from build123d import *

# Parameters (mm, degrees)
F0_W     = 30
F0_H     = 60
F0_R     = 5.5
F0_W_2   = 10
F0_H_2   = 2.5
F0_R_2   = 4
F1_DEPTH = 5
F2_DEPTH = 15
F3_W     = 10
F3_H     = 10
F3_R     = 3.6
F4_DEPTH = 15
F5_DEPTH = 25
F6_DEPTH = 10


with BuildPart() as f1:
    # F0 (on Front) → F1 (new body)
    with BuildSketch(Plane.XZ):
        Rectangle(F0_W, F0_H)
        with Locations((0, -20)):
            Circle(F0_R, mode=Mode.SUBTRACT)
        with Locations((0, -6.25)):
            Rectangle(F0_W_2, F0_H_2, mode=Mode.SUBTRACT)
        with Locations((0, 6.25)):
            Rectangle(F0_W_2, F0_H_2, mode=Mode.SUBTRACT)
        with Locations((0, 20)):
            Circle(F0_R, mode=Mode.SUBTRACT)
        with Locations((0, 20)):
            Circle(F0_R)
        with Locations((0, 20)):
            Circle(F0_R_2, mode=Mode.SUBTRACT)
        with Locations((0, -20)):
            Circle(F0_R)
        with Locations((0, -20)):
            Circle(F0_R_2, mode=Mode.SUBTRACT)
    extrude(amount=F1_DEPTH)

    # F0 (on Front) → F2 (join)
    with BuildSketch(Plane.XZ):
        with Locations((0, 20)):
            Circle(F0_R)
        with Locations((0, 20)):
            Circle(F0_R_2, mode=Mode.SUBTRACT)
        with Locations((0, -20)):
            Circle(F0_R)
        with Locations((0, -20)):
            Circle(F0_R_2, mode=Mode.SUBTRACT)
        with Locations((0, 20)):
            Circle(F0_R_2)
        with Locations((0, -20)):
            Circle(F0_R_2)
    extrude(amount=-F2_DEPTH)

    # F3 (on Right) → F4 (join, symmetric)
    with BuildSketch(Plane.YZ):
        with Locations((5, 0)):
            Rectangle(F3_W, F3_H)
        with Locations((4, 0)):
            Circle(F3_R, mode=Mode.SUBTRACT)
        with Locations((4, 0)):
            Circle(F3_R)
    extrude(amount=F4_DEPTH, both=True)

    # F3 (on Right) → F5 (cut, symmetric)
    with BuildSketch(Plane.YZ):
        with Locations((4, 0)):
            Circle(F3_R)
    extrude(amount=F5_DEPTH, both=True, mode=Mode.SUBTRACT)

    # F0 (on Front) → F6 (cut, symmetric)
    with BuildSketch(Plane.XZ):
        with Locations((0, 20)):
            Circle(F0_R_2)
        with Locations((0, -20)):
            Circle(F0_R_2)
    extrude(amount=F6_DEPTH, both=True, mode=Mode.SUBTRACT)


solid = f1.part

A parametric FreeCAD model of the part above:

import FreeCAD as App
import Part
import Sketcher
from FreeCAD import Vector
Q = App.Units.Quantity


def add_polygon(sketch, points):
    """Adds a closed chain of lines whose ends are joined by coincident constraints."""
    first, n = sketch.GeometryCount, len(points)
    for a, b in zip(points, points[1:] + points[:1]):
        sketch.addGeometry(Part.LineSegment(App.Vector(*a, 0), App.Vector(*b, 0)), False)
    for i in range(n):
        sketch.addConstraint(Sketcher.Constraint("Coincident", first + i, 2, first + (i + 1) % n, 1))

doc = App.newDocument("Part")
body = doc.addObject("PartDesign::Body", "Body")

# Sketch on XZ plane
sketch1 = body.newObject("Sketcher::SketchObject", "Sketch")
sketch1.AttachmentSupport = (doc.getObject("XZ_Plane"), [""])
sketch1.MapMode = "FlatFace"
add_polygon(sketch1, [(-15, 30), (-15, -30), (15, -30), (15, 30)])  # lines 0-3
sketch1.addGeometry(Part.Circle(Vector(0, -20, 0), Vector(0, 0, 1), 4), False)  # 4
add_polygon(sketch1, [(5, -7.5), (-5, -7.5), (-5, -5), (5, -5)])  # lines 5-8
add_polygon(sketch1, [(5, 5), (-5, 5), (-5, 7.5), (5, 7.5)])  # lines 9-12
sketch1.addGeometry(Part.Circle(Vector(0, 20, 0), Vector(0, 0, 1), 4), False)  # 13
sketch1.addConstraint(Sketcher.Constraint("Vertical", 0))
sketch1.addConstraint(Sketcher.Constraint("Horizontal", 1))
sketch1.addConstraint(Sketcher.Constraint("Vertical", 2))
sketch1.addConstraint(Sketcher.Constraint("Horizontal", 3))
sketch1.addConstraint(Sketcher.Constraint("Horizontal", 5))
sketch1.addConstraint(Sketcher.Constraint("Vertical", 6))
sketch1.addConstraint(Sketcher.Constraint("Horizontal", 7))
sketch1.addConstraint(Sketcher.Constraint("Vertical", 8))
sketch1.addConstraint(Sketcher.Constraint("Horizontal", 9))
sketch1.addConstraint(Sketcher.Constraint("Vertical", 10))
sketch1.addConstraint(Sketcher.Constraint("Horizontal", 11))
sketch1.addConstraint(Sketcher.Constraint("Vertical", 12))
sketch1.addConstraint(Sketcher.Constraint("Equal", 4, 13))
sketch1.addConstraint(Sketcher.Constraint("Symmetric", 4, 3, 13, 3, -1, 1))
sketch1.addConstraint(Sketcher.Constraint("Symmetric", 0, 2, 2, 2, -1, 1))
sketch1.addConstraint(Sketcher.Constraint("Symmetric", 7, 2, 9, 2, -1, 1))
sketch1.addConstraint(Sketcher.Constraint("Symmetric", 5, 2, 11, 2, -1, 1))
sketch1.addConstraint(Sketcher.Constraint("PointOnObject", 4, 3, -2))
sketch1.addConstraint(Sketcher.Constraint("Vertical", 6, 2, 9, 2))
sketch1.addConstraint(Sketcher.Constraint("Diameter", 4, Q("8 mm")))
sketch1.addConstraint(Sketcher.Constraint("DistanceX", 1, 1, 1, 2, Q("30 mm")))
sketch1.addConstraint(Sketcher.Constraint("DistanceX", 5, 2, 5, 1, Q("10 mm")))
sketch1.addConstraint(Sketcher.Constraint("DistanceY", 0, 2, 0, 1, Q("60 mm")))
sketch1.addConstraint(Sketcher.Constraint("DistanceY", 6, 1, 6, 2, Q("2.5 mm")))
sketch1.addConstraint(Sketcher.Constraint("DistanceY", 4, 3, -1, 1, Q("20 mm")))
sketch1.addConstraint(Sketcher.Constraint("DistanceY", 6, 2, -1, 1, Q("5 mm")))
pad1 = body.newObject("PartDesign::Pad", "Pad")
pad1.Profile = sketch1
pad1.Length = 5

# Sketch on XZ plane
sketch2 = body.newObject("Sketcher::SketchObject", "Sketch001")
sketch2.AttachmentSupport = (doc.getObject("XZ_Plane"), [""])
sketch2.MapMode = "FlatFace"
sketch2.addGeometry(Part.Circle(Vector(0, 20, 0), Vector(0, 0, 1), 5.5), False)
sketch2.addGeometry(Part.Circle(Vector(0, -20, 0), Vector(0, 0, 1), 5.5), False)
sketch2.addConstraint(Sketcher.Constraint("Equal", 0, 1))
sketch2.addConstraint(Sketcher.Constraint("Symmetric", 0, 3, 1, 3, -1, 1))
sketch2.addConstraint(Sketcher.Constraint("PointOnObject", 0, 3, -2))
sketch2.addConstraint(Sketcher.Constraint("Diameter", 0, Q("11 mm")))
sketch2.addConstraint(Sketcher.Constraint("DistanceY", -1, 1, 0, 3, Q("20 mm")))
pad2 = body.newObject("PartDesign::Pad", "Pad001")
pad2.Profile = sketch2
pad2.Length = 15
pad2.Reversed = True

# Sketch on YZ plane
sketch3 = body.newObject("Sketcher::SketchObject", "Sketch002")
sketch3.AttachmentSupport = (doc.getObject("YZ_Plane"), [""])
sketch3.MapMode = "FlatFace"
add_polygon(sketch3, [(0, 5), (0, -5), (10, -5), (10, 5)])  # lines 0-3
sketch3.addConstraint(Sketcher.Constraint("Vertical", 0))
sketch3.addConstraint(Sketcher.Constraint("Horizontal", 1))
sketch3.addConstraint(Sketcher.Constraint("Vertical", 2))
sketch3.addConstraint(Sketcher.Constraint("Horizontal", 3))
sketch3.addConstraint(Sketcher.Constraint("Symmetric", 0, 2, 3, 2, -1, 1))
sketch3.addConstraint(Sketcher.Constraint("Equal", 3, 0))
sketch3.addConstraint(Sketcher.Constraint("DistanceX", 1, 1, 1, 2, Q("10 mm")))
pad3 = body.newObject("PartDesign::Pad", "Pad002")
pad3.Profile = sketch3
pad3.Length = 30
pad3.Midplane = True

# Sketch on YZ plane
sketch4 = body.newObject("Sketcher::SketchObject", "Sketch003")
sketch4.AttachmentSupport = (doc.getObject("YZ_Plane"), [""])
sketch4.MapMode = "FlatFace"
sketch4.addGeometry(Part.Circle(Vector(4, 0, 0), Vector(0, 0, 1), 3.6), False)
sketch4.addConstraint(Sketcher.Constraint("PointOnObject", 0, 3, -1))
sketch4.addConstraint(Sketcher.Constraint("Diameter", 0, Q("7.2 mm")))
sketch4.addConstraint(Sketcher.Constraint("DistanceX", -1, 1, 0, 3, Q("4 mm")))
pocket1 = body.newObject("PartDesign::Pocket", "Pocket")
pocket1.Profile = sketch4
pocket1.Length = 50
pocket1.Midplane = True

# Sketch on XZ plane
sketch5 = body.newObject("Sketcher::SketchObject", "Sketch004")
sketch5.AttachmentSupport = (doc.getObject("XZ_Plane"), [""])
sketch5.MapMode = "FlatFace"
sketch5.addGeometry(Part.Circle(Vector(0, 20, 0), Vector(0, 0, 1), 4), False)
sketch5.addGeometry(Part.Circle(Vector(0, -20, 0), Vector(0, 0, 1), 4), False)
sketch5.addConstraint(Sketcher.Constraint("Equal", 0, 1))
sketch5.addConstraint(Sketcher.Constraint("Symmetric", 0, 3, 1, 3, -1, 1))
sketch5.addConstraint(Sketcher.Constraint("PointOnObject", 0, 3, -2))
sketch5.addConstraint(Sketcher.Constraint("Diameter", 0, Q("8 mm")))
sketch5.addConstraint(Sketcher.Constraint("DistanceY", -1, 1, 0, 3, Q("20 mm")))
pocket2 = body.newObject("PartDesign::Pocket", "Pocket001")
pocket2.Profile = sketch5
pocket2.Length = 20
pocket2.Midplane = True

doc.recompute()
